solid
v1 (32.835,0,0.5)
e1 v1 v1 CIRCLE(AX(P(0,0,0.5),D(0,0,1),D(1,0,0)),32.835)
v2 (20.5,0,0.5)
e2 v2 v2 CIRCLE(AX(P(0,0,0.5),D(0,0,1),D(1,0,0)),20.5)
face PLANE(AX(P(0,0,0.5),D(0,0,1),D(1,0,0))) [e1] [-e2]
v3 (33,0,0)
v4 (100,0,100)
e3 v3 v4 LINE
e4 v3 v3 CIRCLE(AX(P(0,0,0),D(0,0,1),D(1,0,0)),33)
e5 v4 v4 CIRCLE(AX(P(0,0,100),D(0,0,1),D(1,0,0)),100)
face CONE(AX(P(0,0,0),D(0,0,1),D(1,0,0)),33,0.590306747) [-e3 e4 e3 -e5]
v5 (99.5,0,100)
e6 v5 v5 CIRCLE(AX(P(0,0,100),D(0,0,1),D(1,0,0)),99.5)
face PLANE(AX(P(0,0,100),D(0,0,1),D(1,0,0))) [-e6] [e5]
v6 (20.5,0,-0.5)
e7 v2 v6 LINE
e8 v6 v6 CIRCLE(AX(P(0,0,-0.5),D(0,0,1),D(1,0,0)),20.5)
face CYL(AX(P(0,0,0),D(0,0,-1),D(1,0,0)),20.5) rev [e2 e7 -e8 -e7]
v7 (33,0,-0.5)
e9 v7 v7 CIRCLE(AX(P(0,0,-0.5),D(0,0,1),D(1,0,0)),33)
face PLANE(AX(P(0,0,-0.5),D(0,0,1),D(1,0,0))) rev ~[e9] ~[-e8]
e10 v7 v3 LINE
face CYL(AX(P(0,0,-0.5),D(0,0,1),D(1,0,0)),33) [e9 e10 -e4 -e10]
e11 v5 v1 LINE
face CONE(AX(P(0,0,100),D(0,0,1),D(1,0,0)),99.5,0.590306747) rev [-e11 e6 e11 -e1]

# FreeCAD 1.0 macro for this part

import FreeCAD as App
import Part
import Sketcher

V = App.Vector


def add_polygon(sketch, points):
    """Adds a closed chain of lines whose ends are joined by coincident constraints."""
    first, n = sketch.GeometryCount, len(points)
    for a, b in zip(points, points[1:] + points[:1]):
        sketch.addGeometry(Part.LineSegment(App.Vector(*a, 0), App.Vector(*b, 0)), False)
    for i in range(n):
        sketch.addConstraint(Sketcher.Constraint("Coincident", first + i, 2, first + (i + 1) % n, 1))

doc = App.newDocument("Part")
params = doc.addObject("Spreadsheet::Sheet", "Params")
for row, (alias, value) in enumerate([
    ("sketch1_height", "1 mm"),
    ("sketch1_width", "0.5 mm"),
    ("revolution_angle", "360 deg"),
    ("sketch2_diameter", "65 mm"),
    ("sketch2_diameter2", "41 mm"),
    ("pad1_length", "1 mm"),
], start=1):
    params.set(f"A{row}", alias)
    params.set(f"B{row}", "=" + value)
    params.setAlias(f"B{row}", alias)

body = doc.addObject("PartDesign::Body", "Body")

sketch1 = body.newObject("Sketcher::SketchObject", "Sketch")
sketch1.AttachmentSupport = (doc.getObject("XZ_Plane"), [""])
sketch1.MapMode = "FlatFace"
add_polygon(sketch1, [(32.5, 0.5), (32.5, -0.5), (33, -0.5), (33, 0), (100, 100), (99.5, 100), (32.84, 0.5)])
sketch1.addConstraint([
    Sketcher.Constraint("Vertical", 0),
    Sketcher.Constraint("Horizontal", 1),
    Sketcher.Constraint("Vertical", 2),
    Sketcher.Constraint("Horizontal", 4),
    Sketcher.Constraint("Horizontal", 6),
    Sketcher.Constraint("PointOnObject", 2, 2, -1),
    Sketcher.Constraint("Parallel", 3, 5),
    Sketcher.Constraint("Equal", 1, 4),
    Sketcher.Constraint("Equal", 4, 2),
    Sketcher.Constraint("DistanceY", 0, 2, 0, 1, 1.0),
    Sketcher.Constraint("DistanceX", 1, 1, 1, 2, 0.5),
    Sketcher.Constraint("DistanceX", -1, 1, 1, 2, 33.0),
    Sketcher.Constraint("DistanceX", -1, 1, 3, 2, 100.0),
    Sketcher.Constraint("DistanceY", -1, 1, 3, 2, 100.0),
])
sketch1.setExpression("Constraints[16]", "Params.sketch1_height")
sketch1.setExpression("Constraints[17]", "Params.sketch1_width")
revolution = body.newObject("PartDesign::Revolution", "Revolution")
revolution.Profile = sketch1
revolution.ReferenceAxis = (sketch1, ["V_Axis"])
revolution.setExpression("Angle", "Params.revolution_angle")

sketch2 = body.newObject("Sketcher::SketchObject", "Sketch001")
sketch2.AttachmentSupport = (doc.getObject("XY_Plane"), [""])
sketch2.MapMode = "FlatFace"
sketch2.addGeometry([
    Part.Circle(V(0, 0, 0), V(0, 0, 1), 32),
    Part.Circle(V(0, 0, 0), V(0, 0, 1), 20),
], False)
sketch2.addConstraint([
    Sketcher.Constraint("Coincident", 0, 3, -1, 1),
    Sketcher.Constraint("Coincident", 1, 3, -1, 1),
    Sketcher.Constraint("Diameter", 0, 65.0),
    Sketcher.Constraint("Diameter", 1, 41.0),
])
sketch2.setExpression("Constraints[2]", "Params.sketch2_diameter")
sketch2.setExpression("Constraints[3]", "Params.sketch2_diameter2")
pad1 = body.newObject("PartDesign::Pad", "Pad")
pad1.Profile = sketch2
pad1.setExpression("Length", "Params.pad1_length")
pad1.Midplane = True

doc.recompute()
